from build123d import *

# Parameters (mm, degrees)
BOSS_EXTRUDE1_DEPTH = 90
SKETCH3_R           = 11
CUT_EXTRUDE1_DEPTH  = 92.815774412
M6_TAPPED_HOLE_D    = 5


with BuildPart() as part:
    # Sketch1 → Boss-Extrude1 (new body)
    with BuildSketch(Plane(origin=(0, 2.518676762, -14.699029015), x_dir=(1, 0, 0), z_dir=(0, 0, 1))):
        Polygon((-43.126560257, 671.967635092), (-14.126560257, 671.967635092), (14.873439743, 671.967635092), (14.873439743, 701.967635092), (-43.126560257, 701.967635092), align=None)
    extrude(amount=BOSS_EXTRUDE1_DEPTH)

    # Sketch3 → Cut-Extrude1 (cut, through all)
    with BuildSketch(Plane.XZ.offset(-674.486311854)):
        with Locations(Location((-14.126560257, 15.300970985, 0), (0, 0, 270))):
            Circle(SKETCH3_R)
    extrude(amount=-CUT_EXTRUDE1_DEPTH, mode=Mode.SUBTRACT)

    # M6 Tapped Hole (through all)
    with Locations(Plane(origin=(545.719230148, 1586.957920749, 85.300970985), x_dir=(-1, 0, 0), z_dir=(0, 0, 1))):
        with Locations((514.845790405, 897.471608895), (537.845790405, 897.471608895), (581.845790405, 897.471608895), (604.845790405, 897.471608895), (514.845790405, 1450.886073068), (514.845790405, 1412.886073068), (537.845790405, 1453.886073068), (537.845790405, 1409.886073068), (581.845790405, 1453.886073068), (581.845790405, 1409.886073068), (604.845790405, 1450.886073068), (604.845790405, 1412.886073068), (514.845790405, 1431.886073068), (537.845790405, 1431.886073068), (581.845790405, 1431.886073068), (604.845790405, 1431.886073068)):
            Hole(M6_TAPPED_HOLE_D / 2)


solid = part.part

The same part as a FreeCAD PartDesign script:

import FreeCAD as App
import Part
import Sketcher
from FreeCAD import Vector
Q = App.Units.Quantity

doc = App.newDocument("Part")
body = doc.addObject("PartDesign::Body", "Body")

# Sketch on XY plane
sketch1 = body.newObject("Sketcher::SketchObject", "Sketch")
sketch1.AttachmentSupport = (doc.getObject("XY_Plane"), [""])
sketch1.MapMode = "FlatFace"
sketch1.AttachmentOffset = App.Placement(Vector(0, 0, -14.699029), App.Rotation())
sketch1.addGeometry([
    Part.LineSegment(Vector(-43.12656, 674.486312, 0), Vector(14.87344, 674.486312, 0)),
    Part.LineSegment(Vector(14.87344, 674.486312, 0), Vector(14.87344, 704.486312, 0)),
    Part.LineSegment(Vector(14.87344, 704.486312, 0), Vector(-43.12656, 704.486312, 0)),
    Part.LineSegment(Vector(-43.12656, 704.486312, 0), Vector(-43.12656, 674.486312, 0)),
], False)
sketch1.addConstraint([
    Sketcher.Constraint("Coincident", 0, 2, 1, 1),
    Sketcher.Constraint("Coincident", 1, 2, 2, 1),
    Sketcher.Constraint("Coincident", 2, 2, 3, 1),
    Sketcher.Constraint("Coincident", 3, 2, 0, 1),
    Sketcher.Constraint("Horizontal", 0),
    Sketcher.Constraint("Vertical", 1),
    Sketcher.Constraint("Horizontal", 2),
    Sketcher.Constraint("Vertical", 3),
    Sketcher.Constraint("DistanceX", 0, 1, 0, 2, Q("58 mm")),
    Sketcher.Constraint("DistanceY", 1, 1, 1, 2, Q("30 mm")),
    Sketcher.Constraint("DistanceX", -1, 1, 0, 2, Q("14.87344 mm")),
    Sketcher.Constraint("DistanceY", -1, 1, 0, 2, Q("674.486312 mm")),
])
pad1 = body.newObject("PartDesign::Pad", "Pad")
pad1.Profile = sketch1
pad1.Length = 90

# Sketch on XZ plane
sketch2 = body.newObject("Sketcher::SketchObject", "Sketch001")
sketch2.AttachmentSupport = (doc.getObject("XZ_Plane"), [""])
sketch2.MapMode = "FlatFace"
sketch2.AttachmentOffset = App.Placement(Vector(0, 0, -674.486312), App.Rotation())
sketch2.addGeometry(Part.Circle(Vector(-14.12656, 15.300971, 0), Vector(0, 0, 1), 11), False)
sketch2.addConstraint([
    Sketcher.Constraint("Diameter", 0, Q("22 mm")),
    Sketcher.Constraint("DistanceX", 0, 3, -1, 1, Q("14.12656 mm")),
    Sketcher.Constraint("DistanceY", -1, 1, 0, 3, Q("15.300971 mm")),
])
pocket1 = body.newObject("PartDesign::Pocket", "Pocket")
pocket1.Profile = sketch2
pocket1.Type = "ThroughAll"

# Sketch on XY plane
sketch3 = body.newObject("Sketcher::SketchObject", "Sketch002")
sketch3.AttachmentSupport = (doc.getObject("XY_Plane"), [""])
sketch3.MapMode = "FlatFace"
sketch3.AttachmentOffset = App.Placement(Vector(0, 0, 85.300971), App.Rotation())
sketch3.addGeometry([
    Part.Circle(Vector(30.87344, 689.486312, 0), Vector(0, 0, 1), 2.5),  # 0
    Part.Circle(Vector(7.87344, 689.486312, 0), Vector(0, 0, 1), 2.5),  # 1
    Part.Circle(Vector(-36.12656, 689.486312, 0), Vector(0, 0, 1), 2.5),  # 2
    Part.Circle(Vector(-59.12656, 689.486312, 0), Vector(0, 0, 1), 2.5),  # 3
    Part.Circle(Vector(30.87344, 136.071848, 0), Vector(0, 0, 1), 2.5),  # 4
    Part.Circle(Vector(30.87344, 174.071848, 0), Vector(0, 0, 1), 2.5),  # 5
    Part.Circle(Vector(7.87344, 133.071848, 0), Vector(0, 0, 1), 2.5),  # 6
    Part.Circle(Vector(7.87344, 177.071848, 0), Vector(0, 0, 1), 2.5),  # 7
    Part.Circle(Vector(-36.12656, 133.071848, 0), Vector(0, 0, 1), 2.5),  # 8
    Part.Circle(Vector(-36.12656, 177.071848, 0), Vector(0, 0, 1), 2.5),  # 9
    Part.Circle(Vector(-59.12656, 136.071848, 0), Vector(0, 0, 1), 2.5),  # 10
    Part.Circle(Vector(-59.12656, 174.071848, 0), Vector(0, 0, 1), 2.5),  # 11
    Part.Circle(Vector(30.87344, 155.071848, 0), Vector(0, 0, 1), 2.5),  # 12
    Part.Circle(Vector(7.87344, 155.071848, 0), Vector(0, 0, 1), 2.5),  # 13
    Part.Circle(Vector(-36.12656, 155.071848, 0), Vector(0, 0, 1), 2.5),  # 14
    Part.Circle(Vector(-59.12656, 155.071848, 0), Vector(0, 0, 1), 2.5),  # 15
], False)
sketch3.addConstraint([
    Sketcher.Constraint("Equal", 0, 1),
    Sketcher.Constraint("Equal", 1, 2),
    Sketcher.Constraint("Equal", 2, 3),
    Sketcher.Constraint("Equal", 3, 4),
    Sketcher.Constraint("Equal", 4, 5),
    Sketcher.Constraint("Equal", 5, 6),
    Sketcher.Constraint("Equal", 6, 7),
    Sketcher.Constraint("Equal", 7, 8),
    Sketcher.Constraint("Equal", 8, 9),
    Sketcher.Constraint("Equal", 9, 10),
    Sketcher.Constraint("Equal", 10, 11),
    Sketcher.Constraint("Equal", 11, 12),
    Sketcher.Constraint("Equal", 12, 13),
    Sketcher.Constraint("Equal", 13, 14),
    Sketcher.Constraint("Equal", 14, 15),
    Sketcher.Constraint("Horizontal", 0, 3, 1, 3),
    Sketcher.Constraint("Horizontal", 1, 3, 2, 3),
    Sketcher.Constraint("Horizontal", 2, 3, 3, 3),
    Sketcher.Constraint("Horizontal", 6, 3, 8, 3),
    Sketcher.Constraint("Horizontal", 7, 3, 9, 3),
    Sketcher.Constraint("Horizontal", 4, 3, 10, 3),
    Sketcher.Constraint("Horizontal", 5, 3, 11, 3),
    Sketcher.Constraint("Horizontal", 12, 3, 13, 3),
    Sketcher.Constraint("Horizontal", 13, 3, 14, 3),
    Sketcher.Constraint("Horizontal", 14, 3, 15, 3),
    Sketcher.Constraint("Vertical", 0, 3, 4, 3),
    Sketcher.Constraint("Vertical", 4, 3, 5, 3),
    Sketcher.Constraint("Vertical", 1, 3, 6, 3),
    Sketcher.Constraint("Vertical", 6, 3, 7, 3),
    Sketcher.Constraint("Vertical", 2, 3, 8, 3),
    Sketcher.Constraint("Vertical", 8, 3, 9, 3),
    Sketcher.Constraint("Vertical", 3, 3, 10, 3),
    Sketcher.Constraint("Vertical", 10, 3, 11, 3),
    Sketcher.Constraint("Vertical", 5, 3, 12, 3),
    Sketcher.Constraint("Vertical", 7, 3, 13, 3),
    Sketcher.Constraint("Vertical", 9, 3, 14, 3),
    Sketcher.Constraint("Vertical", 11, 3, 15, 3),
    Sketcher.Constraint("Diameter", 0, Q("5 mm")),
    Sketcher.Constraint("DistanceX", 1, 3, 0, 3, Q("23 mm")),
    Sketcher.Constraint("DistanceX", 2, 3, 1, 3, Q("44 mm")),
    Sketcher.Constraint("DistanceX", 3, 3, 2, 3, Q("23 mm")),
    Sketcher.Constraint("DistanceY", 4, 3, 5, 3, Q("38 mm")),
    Sketcher.Constraint("DistanceY", 6, 3, 4, 3, Q("3 mm")),
    Sketcher.Constraint("DistanceY", 5, 3, 7, 3, Q("3 mm")),
    Sketcher.Constraint("DistanceY", 4, 3, 12, 3, Q("19 mm")),
    Sketcher.Constraint("DistanceX", -1, 1, 0, 3, Q("30.87344 mm")),
    Sketcher.Constraint("DistanceY", -1, 1, 0, 3, Q("689.486312 mm")),
    Sketcher.Constraint("DistanceY", -1, 1, 4, 3, Q("136.071848 mm")),
])
doc.recompute()
hole = body.newObject("PartDesign::Hole", "Hole")
hole.Profile = sketch3
hole.ThreadType = "None"
hole.Diameter = 5
hole.DepthType = "ThroughAll"

doc.recompute()
